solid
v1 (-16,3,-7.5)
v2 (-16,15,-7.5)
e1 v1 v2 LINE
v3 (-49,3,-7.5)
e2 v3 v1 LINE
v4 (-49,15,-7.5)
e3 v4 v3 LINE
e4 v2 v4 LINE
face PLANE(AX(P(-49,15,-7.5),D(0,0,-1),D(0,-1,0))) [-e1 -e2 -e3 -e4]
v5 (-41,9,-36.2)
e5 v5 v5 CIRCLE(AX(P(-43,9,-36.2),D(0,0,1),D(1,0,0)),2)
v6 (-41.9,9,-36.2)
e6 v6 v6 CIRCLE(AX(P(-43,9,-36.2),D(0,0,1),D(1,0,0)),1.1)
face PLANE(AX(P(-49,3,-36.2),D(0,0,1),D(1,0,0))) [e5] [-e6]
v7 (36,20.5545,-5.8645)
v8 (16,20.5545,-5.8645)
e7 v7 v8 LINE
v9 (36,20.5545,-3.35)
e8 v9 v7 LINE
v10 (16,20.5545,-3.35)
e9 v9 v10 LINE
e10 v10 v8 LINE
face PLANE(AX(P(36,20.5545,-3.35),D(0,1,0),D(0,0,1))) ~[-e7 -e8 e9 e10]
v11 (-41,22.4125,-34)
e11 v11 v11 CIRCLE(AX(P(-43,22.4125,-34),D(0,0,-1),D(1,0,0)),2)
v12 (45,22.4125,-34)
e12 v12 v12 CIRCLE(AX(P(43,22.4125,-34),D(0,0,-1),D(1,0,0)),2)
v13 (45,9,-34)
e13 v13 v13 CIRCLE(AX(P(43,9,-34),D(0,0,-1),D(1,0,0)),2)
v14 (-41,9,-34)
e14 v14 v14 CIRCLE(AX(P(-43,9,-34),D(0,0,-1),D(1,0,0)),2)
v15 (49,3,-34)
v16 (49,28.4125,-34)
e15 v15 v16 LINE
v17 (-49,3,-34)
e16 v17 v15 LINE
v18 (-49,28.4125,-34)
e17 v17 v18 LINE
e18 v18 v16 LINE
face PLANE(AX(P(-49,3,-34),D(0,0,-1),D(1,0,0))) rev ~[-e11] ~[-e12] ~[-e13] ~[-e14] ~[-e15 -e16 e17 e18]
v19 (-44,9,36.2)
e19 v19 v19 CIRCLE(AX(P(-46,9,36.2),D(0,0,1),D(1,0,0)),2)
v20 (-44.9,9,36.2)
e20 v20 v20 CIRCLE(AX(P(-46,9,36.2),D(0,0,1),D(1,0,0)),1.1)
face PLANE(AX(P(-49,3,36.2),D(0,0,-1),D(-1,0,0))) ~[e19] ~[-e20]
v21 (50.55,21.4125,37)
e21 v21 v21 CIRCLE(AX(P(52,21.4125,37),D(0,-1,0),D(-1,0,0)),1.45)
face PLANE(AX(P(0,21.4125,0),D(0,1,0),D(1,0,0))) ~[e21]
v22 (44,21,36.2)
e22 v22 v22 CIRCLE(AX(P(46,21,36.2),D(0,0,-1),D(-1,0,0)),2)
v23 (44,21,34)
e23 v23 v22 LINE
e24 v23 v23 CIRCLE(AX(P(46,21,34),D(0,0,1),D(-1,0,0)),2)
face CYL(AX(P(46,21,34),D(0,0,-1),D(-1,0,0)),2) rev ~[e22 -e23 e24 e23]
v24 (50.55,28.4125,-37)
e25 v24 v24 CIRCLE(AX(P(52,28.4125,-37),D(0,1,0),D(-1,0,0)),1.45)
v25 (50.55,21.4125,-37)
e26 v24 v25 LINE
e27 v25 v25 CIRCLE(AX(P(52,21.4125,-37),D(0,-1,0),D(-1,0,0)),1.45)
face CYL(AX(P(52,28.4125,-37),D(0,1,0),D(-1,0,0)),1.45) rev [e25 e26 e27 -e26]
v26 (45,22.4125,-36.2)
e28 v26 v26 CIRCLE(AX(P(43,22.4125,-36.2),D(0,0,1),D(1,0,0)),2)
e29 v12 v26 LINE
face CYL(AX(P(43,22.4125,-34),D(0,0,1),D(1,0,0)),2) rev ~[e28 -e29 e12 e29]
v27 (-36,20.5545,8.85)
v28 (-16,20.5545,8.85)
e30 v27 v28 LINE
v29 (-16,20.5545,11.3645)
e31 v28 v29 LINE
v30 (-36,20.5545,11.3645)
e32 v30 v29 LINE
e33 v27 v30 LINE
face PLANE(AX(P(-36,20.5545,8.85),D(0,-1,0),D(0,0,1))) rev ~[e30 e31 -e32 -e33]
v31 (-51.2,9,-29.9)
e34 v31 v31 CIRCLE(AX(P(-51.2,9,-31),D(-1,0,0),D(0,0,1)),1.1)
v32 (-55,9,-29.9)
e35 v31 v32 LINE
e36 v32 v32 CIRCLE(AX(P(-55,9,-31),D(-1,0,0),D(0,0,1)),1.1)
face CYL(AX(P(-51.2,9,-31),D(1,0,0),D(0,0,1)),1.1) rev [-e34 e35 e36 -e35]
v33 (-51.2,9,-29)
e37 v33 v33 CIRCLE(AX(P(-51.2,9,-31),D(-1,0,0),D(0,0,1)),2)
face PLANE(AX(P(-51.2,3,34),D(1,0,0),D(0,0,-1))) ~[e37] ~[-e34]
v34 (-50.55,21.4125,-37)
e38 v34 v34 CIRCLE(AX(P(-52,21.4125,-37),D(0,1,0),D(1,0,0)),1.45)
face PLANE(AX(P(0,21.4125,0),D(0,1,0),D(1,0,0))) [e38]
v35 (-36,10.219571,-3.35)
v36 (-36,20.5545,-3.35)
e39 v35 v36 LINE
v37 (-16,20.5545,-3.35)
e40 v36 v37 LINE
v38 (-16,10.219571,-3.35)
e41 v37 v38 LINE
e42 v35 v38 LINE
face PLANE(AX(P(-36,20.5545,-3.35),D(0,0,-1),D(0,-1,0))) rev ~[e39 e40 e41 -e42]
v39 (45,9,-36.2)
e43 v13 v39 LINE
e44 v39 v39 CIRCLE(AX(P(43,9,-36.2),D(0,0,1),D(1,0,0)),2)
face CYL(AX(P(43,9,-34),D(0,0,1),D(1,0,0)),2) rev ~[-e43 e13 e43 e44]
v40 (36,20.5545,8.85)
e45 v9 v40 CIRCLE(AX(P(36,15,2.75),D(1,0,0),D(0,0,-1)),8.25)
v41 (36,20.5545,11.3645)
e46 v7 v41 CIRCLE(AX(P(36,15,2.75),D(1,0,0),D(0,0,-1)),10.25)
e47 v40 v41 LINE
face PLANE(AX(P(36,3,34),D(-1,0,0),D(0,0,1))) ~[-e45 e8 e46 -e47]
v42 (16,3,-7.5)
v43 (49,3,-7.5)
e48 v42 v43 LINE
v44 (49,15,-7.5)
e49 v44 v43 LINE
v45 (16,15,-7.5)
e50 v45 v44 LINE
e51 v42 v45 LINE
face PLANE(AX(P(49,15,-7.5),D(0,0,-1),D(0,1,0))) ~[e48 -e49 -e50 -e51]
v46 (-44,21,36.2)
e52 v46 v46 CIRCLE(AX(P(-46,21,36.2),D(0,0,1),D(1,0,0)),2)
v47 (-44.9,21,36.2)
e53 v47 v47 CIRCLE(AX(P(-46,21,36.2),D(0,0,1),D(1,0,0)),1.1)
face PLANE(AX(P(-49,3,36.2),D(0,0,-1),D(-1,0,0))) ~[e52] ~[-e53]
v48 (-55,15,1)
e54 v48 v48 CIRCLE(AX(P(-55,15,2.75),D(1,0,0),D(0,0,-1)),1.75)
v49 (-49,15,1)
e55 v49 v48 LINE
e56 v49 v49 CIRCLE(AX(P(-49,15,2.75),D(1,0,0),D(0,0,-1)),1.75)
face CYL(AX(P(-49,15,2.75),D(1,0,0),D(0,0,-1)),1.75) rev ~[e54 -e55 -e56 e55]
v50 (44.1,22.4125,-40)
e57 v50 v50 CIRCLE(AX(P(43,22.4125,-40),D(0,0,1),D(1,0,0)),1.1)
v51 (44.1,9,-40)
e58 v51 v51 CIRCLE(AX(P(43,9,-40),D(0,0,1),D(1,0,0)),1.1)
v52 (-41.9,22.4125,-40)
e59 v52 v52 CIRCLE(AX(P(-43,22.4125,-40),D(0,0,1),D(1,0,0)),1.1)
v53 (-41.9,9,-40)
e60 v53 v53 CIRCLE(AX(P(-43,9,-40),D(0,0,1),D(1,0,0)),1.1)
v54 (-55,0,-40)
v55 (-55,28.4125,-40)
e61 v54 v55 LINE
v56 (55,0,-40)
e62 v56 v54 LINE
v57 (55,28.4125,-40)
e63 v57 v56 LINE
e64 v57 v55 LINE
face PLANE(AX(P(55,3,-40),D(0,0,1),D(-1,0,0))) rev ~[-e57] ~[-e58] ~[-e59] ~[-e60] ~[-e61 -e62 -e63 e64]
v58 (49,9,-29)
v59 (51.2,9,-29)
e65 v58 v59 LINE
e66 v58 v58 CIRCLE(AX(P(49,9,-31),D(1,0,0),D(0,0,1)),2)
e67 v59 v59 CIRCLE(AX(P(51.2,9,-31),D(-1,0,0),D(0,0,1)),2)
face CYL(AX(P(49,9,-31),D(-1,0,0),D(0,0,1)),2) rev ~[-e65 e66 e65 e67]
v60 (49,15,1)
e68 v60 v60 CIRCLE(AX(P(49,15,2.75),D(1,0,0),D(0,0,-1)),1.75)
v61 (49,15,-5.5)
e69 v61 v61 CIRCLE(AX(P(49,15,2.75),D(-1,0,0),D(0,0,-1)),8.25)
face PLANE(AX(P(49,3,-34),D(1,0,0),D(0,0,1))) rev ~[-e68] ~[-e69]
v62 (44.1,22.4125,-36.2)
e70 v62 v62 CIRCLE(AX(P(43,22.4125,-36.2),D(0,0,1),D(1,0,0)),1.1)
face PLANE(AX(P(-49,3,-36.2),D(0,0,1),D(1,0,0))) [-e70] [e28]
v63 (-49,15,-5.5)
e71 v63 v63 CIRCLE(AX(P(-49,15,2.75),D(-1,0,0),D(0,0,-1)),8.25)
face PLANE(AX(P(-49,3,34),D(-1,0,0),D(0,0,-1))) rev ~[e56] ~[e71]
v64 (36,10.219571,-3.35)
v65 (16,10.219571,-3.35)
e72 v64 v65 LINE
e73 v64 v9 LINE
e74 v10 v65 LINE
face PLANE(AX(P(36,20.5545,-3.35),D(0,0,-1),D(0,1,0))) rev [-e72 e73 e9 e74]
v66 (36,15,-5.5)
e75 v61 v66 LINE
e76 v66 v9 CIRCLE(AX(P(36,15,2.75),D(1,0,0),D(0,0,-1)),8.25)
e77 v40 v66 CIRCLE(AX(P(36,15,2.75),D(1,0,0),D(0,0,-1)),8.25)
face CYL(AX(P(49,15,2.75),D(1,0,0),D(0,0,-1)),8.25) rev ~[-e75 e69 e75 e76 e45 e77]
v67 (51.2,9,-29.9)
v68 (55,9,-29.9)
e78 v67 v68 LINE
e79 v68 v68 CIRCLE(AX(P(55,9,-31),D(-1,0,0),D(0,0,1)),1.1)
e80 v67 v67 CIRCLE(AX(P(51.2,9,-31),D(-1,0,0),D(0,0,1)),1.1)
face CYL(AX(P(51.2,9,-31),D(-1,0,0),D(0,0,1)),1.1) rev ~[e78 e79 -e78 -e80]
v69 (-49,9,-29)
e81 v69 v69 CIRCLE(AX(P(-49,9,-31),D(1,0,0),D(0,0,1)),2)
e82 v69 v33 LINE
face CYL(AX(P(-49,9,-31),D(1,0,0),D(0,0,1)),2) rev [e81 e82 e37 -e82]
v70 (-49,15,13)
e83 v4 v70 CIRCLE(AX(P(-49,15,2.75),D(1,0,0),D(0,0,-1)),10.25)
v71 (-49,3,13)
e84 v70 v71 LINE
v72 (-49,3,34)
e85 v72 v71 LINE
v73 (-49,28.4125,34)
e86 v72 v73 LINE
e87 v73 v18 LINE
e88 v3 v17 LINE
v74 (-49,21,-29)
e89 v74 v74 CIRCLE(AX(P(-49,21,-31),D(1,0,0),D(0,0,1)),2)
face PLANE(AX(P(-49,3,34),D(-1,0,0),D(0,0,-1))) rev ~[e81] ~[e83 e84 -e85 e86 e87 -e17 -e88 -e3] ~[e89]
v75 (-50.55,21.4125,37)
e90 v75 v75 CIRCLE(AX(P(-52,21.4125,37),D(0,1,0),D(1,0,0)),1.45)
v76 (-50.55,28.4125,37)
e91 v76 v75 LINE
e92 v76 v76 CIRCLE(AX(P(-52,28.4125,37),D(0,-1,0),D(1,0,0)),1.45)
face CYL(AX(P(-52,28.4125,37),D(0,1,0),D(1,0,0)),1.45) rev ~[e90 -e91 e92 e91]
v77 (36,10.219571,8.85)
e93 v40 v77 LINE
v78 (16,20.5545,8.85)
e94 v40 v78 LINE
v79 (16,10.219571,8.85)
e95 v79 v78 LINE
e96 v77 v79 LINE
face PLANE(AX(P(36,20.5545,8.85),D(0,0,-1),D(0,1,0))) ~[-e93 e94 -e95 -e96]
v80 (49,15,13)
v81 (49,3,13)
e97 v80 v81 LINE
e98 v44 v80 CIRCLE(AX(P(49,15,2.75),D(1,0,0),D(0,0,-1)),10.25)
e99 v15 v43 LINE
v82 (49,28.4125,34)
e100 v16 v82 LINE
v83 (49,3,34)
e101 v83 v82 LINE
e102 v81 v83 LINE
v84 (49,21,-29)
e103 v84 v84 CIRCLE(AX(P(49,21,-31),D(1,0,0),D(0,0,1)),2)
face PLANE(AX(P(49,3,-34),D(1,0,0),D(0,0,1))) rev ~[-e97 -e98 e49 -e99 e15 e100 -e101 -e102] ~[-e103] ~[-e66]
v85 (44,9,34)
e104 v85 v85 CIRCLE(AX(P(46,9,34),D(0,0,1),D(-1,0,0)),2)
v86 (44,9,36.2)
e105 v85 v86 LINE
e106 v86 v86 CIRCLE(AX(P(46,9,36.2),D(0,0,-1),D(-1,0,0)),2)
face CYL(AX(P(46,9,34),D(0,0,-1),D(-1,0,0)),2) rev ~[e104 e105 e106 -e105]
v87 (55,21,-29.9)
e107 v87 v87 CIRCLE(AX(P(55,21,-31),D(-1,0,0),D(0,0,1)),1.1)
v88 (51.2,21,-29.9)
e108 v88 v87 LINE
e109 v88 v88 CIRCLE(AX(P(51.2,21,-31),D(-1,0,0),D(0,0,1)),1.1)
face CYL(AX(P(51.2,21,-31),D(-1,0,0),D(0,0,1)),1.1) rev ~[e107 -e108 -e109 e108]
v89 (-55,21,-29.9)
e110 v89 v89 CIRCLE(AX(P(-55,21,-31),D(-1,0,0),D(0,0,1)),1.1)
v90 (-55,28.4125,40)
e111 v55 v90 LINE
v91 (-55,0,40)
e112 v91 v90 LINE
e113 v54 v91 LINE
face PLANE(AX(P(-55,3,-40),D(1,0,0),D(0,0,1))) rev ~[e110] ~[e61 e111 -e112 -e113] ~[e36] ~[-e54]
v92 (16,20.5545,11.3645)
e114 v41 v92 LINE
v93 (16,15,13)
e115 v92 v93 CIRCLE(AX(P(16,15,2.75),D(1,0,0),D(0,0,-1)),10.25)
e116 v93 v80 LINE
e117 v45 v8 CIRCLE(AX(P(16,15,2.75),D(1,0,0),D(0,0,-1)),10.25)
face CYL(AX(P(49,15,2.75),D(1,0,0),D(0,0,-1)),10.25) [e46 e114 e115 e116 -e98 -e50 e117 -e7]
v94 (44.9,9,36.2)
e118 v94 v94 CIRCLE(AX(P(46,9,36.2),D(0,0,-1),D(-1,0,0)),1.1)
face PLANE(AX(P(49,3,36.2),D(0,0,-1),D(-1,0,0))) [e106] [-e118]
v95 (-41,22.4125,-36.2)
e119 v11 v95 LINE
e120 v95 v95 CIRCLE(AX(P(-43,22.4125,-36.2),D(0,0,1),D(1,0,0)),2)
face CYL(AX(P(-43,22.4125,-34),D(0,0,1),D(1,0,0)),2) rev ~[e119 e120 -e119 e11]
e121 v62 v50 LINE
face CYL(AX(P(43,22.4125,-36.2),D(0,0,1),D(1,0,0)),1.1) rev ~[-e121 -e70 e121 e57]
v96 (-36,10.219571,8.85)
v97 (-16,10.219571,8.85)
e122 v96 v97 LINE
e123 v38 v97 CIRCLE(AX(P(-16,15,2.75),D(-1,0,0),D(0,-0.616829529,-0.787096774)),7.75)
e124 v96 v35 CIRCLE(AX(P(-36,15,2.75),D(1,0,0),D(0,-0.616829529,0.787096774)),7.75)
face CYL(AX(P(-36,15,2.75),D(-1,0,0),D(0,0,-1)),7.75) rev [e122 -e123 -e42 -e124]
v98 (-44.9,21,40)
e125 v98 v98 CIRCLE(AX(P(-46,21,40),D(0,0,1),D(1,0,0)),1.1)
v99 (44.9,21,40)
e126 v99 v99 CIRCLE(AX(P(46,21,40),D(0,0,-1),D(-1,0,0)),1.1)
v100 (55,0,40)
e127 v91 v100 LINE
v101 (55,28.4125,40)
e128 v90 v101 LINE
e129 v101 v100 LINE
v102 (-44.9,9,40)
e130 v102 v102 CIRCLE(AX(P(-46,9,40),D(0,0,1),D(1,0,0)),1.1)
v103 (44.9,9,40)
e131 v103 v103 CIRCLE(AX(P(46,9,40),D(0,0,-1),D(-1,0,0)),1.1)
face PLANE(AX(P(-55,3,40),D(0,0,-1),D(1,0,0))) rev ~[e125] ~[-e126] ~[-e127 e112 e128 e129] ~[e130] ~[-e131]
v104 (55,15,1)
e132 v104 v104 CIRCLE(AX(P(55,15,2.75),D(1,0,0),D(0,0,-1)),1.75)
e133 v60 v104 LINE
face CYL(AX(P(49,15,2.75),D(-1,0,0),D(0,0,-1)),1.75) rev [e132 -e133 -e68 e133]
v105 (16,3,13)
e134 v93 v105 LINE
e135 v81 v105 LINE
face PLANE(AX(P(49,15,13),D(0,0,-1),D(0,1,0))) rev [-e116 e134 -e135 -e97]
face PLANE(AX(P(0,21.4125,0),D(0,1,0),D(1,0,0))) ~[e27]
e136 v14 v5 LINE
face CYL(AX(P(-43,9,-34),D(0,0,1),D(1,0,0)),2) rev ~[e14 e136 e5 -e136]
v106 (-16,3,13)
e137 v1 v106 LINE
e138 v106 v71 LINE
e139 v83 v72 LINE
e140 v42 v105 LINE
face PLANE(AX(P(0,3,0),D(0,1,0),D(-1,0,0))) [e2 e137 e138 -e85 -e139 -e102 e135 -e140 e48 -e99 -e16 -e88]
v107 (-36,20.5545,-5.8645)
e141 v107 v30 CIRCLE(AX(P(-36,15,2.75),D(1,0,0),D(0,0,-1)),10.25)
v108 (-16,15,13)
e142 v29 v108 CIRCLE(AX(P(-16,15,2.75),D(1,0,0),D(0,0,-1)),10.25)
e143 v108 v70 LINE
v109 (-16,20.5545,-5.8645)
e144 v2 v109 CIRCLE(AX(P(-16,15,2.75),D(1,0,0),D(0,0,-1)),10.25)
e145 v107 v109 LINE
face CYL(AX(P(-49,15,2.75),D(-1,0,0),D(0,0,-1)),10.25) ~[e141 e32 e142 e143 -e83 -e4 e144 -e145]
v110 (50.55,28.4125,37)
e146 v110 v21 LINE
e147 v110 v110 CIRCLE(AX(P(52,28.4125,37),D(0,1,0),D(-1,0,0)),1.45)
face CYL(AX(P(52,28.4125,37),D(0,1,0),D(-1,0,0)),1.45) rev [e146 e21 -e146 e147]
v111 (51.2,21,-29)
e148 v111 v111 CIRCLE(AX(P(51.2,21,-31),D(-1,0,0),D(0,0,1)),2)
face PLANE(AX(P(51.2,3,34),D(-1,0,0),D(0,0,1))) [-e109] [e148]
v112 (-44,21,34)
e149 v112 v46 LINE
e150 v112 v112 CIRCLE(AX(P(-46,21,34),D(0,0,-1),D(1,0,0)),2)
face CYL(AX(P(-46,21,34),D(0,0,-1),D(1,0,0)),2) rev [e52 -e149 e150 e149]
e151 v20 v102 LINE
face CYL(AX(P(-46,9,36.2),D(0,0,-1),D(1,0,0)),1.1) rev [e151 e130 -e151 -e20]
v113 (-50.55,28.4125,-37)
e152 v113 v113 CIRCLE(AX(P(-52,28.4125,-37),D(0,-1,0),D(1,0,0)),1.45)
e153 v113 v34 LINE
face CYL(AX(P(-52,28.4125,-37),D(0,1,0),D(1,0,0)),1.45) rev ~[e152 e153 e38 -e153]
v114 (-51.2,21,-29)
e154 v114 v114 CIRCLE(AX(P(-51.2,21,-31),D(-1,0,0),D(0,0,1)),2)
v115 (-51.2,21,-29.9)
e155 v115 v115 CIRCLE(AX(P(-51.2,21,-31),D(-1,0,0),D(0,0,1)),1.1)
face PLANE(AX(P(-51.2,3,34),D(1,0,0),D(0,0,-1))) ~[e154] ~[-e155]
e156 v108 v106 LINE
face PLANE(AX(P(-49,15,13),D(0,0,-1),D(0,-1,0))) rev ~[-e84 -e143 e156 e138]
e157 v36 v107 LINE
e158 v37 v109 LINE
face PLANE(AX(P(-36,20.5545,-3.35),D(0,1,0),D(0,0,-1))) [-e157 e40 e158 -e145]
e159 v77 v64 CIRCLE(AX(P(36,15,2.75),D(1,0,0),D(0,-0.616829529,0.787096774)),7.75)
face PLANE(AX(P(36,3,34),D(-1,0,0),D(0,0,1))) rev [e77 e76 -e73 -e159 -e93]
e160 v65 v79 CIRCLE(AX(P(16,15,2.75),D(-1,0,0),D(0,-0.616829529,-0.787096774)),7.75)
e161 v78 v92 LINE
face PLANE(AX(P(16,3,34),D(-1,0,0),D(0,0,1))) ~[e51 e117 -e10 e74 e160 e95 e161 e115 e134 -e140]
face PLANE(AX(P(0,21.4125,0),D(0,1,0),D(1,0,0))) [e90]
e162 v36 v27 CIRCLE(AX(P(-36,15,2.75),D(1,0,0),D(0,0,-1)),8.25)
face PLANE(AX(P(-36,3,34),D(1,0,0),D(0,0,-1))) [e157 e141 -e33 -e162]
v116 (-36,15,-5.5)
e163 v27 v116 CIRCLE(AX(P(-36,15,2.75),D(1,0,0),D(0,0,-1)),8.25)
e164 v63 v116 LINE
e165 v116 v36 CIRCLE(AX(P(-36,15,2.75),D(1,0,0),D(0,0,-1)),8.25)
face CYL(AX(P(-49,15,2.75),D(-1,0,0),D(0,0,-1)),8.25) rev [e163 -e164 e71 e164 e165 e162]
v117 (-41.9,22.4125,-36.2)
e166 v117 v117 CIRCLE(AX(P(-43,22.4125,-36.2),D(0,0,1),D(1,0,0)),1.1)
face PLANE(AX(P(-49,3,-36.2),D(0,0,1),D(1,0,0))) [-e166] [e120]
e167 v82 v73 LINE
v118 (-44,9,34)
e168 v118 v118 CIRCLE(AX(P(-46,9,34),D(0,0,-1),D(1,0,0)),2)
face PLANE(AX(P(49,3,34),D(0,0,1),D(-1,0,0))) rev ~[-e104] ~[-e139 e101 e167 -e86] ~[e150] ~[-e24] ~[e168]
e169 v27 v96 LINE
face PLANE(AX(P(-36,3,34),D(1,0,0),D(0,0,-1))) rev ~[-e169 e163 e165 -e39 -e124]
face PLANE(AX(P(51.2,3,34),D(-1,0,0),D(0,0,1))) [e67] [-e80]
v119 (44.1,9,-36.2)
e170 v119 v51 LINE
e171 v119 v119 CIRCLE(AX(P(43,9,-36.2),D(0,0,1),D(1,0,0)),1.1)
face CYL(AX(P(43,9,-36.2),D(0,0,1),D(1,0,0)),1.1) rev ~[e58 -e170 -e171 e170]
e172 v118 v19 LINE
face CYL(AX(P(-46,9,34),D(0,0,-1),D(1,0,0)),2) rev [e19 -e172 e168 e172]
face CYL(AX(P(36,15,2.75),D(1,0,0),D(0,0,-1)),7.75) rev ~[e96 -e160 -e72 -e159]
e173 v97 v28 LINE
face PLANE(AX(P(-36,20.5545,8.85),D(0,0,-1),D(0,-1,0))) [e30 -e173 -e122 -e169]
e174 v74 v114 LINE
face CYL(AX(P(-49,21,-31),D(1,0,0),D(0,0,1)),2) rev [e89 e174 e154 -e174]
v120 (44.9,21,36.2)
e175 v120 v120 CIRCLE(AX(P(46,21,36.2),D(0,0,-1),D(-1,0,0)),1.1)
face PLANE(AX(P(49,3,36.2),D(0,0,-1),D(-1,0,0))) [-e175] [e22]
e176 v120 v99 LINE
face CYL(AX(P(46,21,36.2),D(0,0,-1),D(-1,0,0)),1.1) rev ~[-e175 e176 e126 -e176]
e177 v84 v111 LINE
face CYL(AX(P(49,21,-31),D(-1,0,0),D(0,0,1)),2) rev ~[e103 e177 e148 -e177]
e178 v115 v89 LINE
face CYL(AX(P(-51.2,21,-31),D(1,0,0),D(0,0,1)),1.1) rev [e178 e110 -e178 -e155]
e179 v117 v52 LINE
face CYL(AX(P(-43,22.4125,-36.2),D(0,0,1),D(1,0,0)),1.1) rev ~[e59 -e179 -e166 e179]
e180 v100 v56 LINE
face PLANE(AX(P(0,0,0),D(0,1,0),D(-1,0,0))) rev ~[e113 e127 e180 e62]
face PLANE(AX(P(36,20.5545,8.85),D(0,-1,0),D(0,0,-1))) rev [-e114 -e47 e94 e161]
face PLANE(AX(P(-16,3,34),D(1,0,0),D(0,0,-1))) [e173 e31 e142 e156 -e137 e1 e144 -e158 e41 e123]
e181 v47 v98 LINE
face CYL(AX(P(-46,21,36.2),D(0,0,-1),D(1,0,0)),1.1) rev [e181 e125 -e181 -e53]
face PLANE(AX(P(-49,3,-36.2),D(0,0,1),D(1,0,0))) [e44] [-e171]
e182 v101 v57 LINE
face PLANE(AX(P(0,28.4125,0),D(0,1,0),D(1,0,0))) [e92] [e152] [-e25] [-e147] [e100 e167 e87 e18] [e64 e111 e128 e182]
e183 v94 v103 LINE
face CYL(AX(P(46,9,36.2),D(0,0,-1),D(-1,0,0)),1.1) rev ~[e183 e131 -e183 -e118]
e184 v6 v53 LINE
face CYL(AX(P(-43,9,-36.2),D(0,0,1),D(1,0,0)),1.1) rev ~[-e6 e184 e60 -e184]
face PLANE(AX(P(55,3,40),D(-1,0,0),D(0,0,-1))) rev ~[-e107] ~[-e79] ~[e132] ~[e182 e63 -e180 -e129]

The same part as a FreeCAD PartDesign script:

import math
import FreeCAD as App
import Part
import Sketcher
from FreeCAD import Vector
Q = App.Units.Quantity


def add_polygon(sketch, points):
    """Adds a closed chain of lines whose ends are joined by coincident constraints."""
    first, n = sketch.GeometryCount, len(points)
    for a, b in zip(points, points[1:] + points[:1]):
        sketch.addGeometry(Part.LineSegment(App.Vector(*a, 0), App.Vector(*b, 0)), False)
    for i in range(n):
        sketch.addConstraint(Sketcher.Constraint("Coincident", first + i, 2, first + (i + 1) % n, 1))

doc = App.newDocument("Part")
params = doc.addObject("Spreadsheet::Sheet", "Params")
for row, (alias, value) in enumerate([
    ("sketch1_width", "110 mm"),
    ("sketch1_height", "80 mm"),
    ("pad1_length", "3 mm"),
    ("sketch2_width", "98 mm"),
    ("sketch2_height", "68 mm"),
    ("sketch2_width2", "110 mm"),
    ("sketch2_height2", "80 mm"),
    ("pad2_length", "25.4125 mm"),
    ("sketch3_diameter", "16.5 mm"),
    ("sketch3_width", "12 mm"),
    ("sketch3_radius", "10.25 mm"),
    ("pad3_length", "13 mm"),
    ("sketch4_radius", "7.75 mm"),
    ("sketch4_width", "12 mm"),
    ("sketch4_radius2", "10.25 mm"),
    ("pad4_length", "20 mm"),
    ("sketch5_diameter", "3.5 mm"),
    ("pocket1_length", "6 mm"),
    ("sketch6_diameter", "4 mm"),
    ("pocket2_length", "2.2 mm"),
    ("sketch7_diameter", "2.2 mm"),
    ("pocket3_length", "3.8 mm"),
    ("sketch8_diameter", "2.9 mm"),
    ("pocket4_length", "7 mm"),
    ("sketch9_diameter", "4 mm"),
    ("pocket5_length", "2.2 mm"),
    ("sketch10_diameter", "2.2 mm"),
    ("pocket6_length", "3.8 mm"),
    ("sketch11_diameter", "4 mm"),
    ("pocket7_length", "2.2 mm"),
    ("sketch12_diameter", "2.2 mm"),
    ("pocket8_length", "3.8 mm"),
], start=1):
    params.set(f"A{row}", alias)
    params.set(f"B{row}", "=" + value)
    params.setAlias(f"B{row}", alias)

body = doc.addObject("PartDesign::Body", "Body")

# Sketch on XZ plane
sketch1 = body.newObject("Sketcher::SketchObject", "Sketch")
sketch1.AttachmentSupport = (doc.getObject("XZ_Plane"), [""])
sketch1.MapMode = "FlatFace"
add_polygon(sketch1, [(-55, -40), (-55, 40), (55, 40), (55, -40)])  # lines 0-3
sketch1.addConstraint([
    Sketcher.Constraint("Vertical", 0),
    Sketcher.Constraint("Horizontal", 1),
    Sketcher.Constraint("Vertical", 2),
    Sketcher.Constraint("Horizontal", 3),
    Sketcher.Constraint("Symmetric", 0, 2, 2, 2, -1, 1),
    Sketcher.Constraint("DistanceX", 1, 1, 1, 2, Q("110 mm")),
    Sketcher.Constraint("DistanceY", 0, 1, 0, 2, Q("80 mm")),
])
sketch1.setExpression("Constraints[9]", "Params.sketch1_width")
sketch1.setExpression("Constraints[10]", "Params.sketch1_height")
pad1 = body.newObject("PartDesign::Pad", "Pad")
pad1.Profile = sketch1
pad1.setExpression("Length", "Params.pad1_length")
pad1.Reversed = True

# Sketch on XZ plane
sketch2 = body.newObject("Sketcher::SketchObject", "Sketch001")
sketch2.AttachmentSupport = (doc.getObject("XZ_Plane"), [""])
sketch2.MapMode = "FlatFace"
sketch2.AttachmentOffset = App.Placement(Vector(0, 0, -3), App.Rotation())
add_polygon(sketch2, [(55, -40), (-55, -40), (-55, 40), (55, 40)])  # lines 0-3
add_polygon(sketch2, [(49, -34), (49, 34), (-49, 34), (-49, -34)])  # lines 4-7
sketch2.addConstraint([
    Sketcher.Constraint("Horizontal", 0),
    Sketcher.Constraint("Vertical", 1),
    Sketcher.Constraint("Horizontal", 2),
    Sketcher.Constraint("Vertical", 3),
    Sketcher.Constraint("Vertical", 4),
    Sketcher.Constraint("Horizontal", 5),
    Sketcher.Constraint("Vertical", 6),
    Sketcher.Constraint("Horizontal", 7),
    Sketcher.Constraint("Symmetric", 0, 2, 2, 2, -1, 1),
    Sketcher.Constraint("Symmetric", 4, 2, 6, 2, -1, 1),
    Sketcher.Constraint("DistanceX", 5, 2, 5, 1, Q("98 mm")),
    Sketcher.Constraint("DistanceY", 4, 1, 4, 2, Q("68 mm")),
    Sketcher.Constraint("DistanceX", 0, 2, 0, 1, Q("110 mm")),
    Sketcher.Constraint("DistanceY", 1, 1, 1, 2, Q("80 mm")),
])
sketch2.setExpression("Constraints[18]", "Params.sketch2_width")
sketch2.setExpression("Constraints[19]", "Params.sketch2_height")
sketch2.setExpression("Constraints[20]", "Params.sketch2_width2")
sketch2.setExpression("Constraints[21]", "Params.sketch2_height2")
pad2 = body.newObject("PartDesign::Pad", "Pad001")
pad2.Profile = sketch2
pad2.setExpression("Length", "Params.pad2_length")
pad2.Reversed = True

# Sketch on YZ plane
sketch3 = body.newObject("Sketcher::SketchObject", "Sketch002")
sketch3.AttachmentSupport = (doc.getObject("YZ_Plane"), [""])
sketch3.MapMode = "FlatFace"
sketch3.AttachmentOffset = App.Placement(Vector(0, 0, -49), App.Rotation())
sketch3.addGeometry([
    Part.ArcOfCircle(Part.Circle(Vector(15, 2.75, 0), Vector(0, 0, 1), 10.25), math.radians(-90), math.radians(90)),  # 0
    Part.LineSegment(Vector(15, 13, 0), Vector(3, 13, 0)),  # 1
    Part.LineSegment(Vector(3, 13, 0), Vector(3, -7.5, 0)),  # 2
    Part.LineSegment(Vector(3, -7.5, 0), Vector(15, -7.5, 0)),  # 3
    Part.Circle(Vector(15, 2.75, 0), Vector(0, 0, 1), 8.25),  # 4
], False)
sketch3.addConstraint([
    Sketcher.Constraint("Tangent", 0, 2, 1, 1),
    Sketcher.Constraint("Coincident", 1, 2, 2, 1),
    Sketcher.Constraint("Coincident", 2, 2, 3, 1),
    Sketcher.Constraint("Tangent", 3, 2, 0, 1),
    Sketcher.Constraint("Horizontal", 1),
    Sketcher.Constraint("Vertical", 2),
    Sketcher.Constraint("Horizontal", 3),
    Sketcher.Constraint("Coincident", 4, 3, 0, 3),
    Sketcher.Constraint("Diameter", 4, Q("16.5 mm")),
    Sketcher.Constraint("DistanceX", -1, 1, 0, 3, Q("15 mm")),
    Sketcher.Constraint("DistanceX", 1, 2, 1, 1, Q("12 mm")),
    Sketcher.Constraint("Radius", 0, Q("10.25 mm")),
    Sketcher.Constraint("DistanceY", -1, 1, 0, 2, Q("13 mm")),
])
sketch3.setExpression("Constraints[8]", "Params.sketch3_diameter")
sketch3.setExpression("Constraints[10]", "Params.sketch3_width")
sketch3.setExpression("Constraints[11]", "Params.sketch3_radius")
pad3 = body.newObject("PartDesign::Pad", "Pad002")
pad3.Profile = sketch3
pad3.setExpression("Length", "Params.pad3_length")

# Sketch on YZ plane
sketch4 = body.newObject("Sketcher::SketchObject", "Sketch003")
sketch4.AttachmentSupport = (doc.getObject("YZ_Plane"), [""])
sketch4.MapMode = "FlatFace"
sketch4.AttachmentOffset = App.Placement(Vector(0, 0, -36), App.Rotation())
sketch4.addGeometry([
    Part.LineSegment(Vector(3, -7.5, 0), Vector(15, -7.5, 0)),  # 0
    Part.ArcOfCircle(Part.Circle(Vector(15, 2.75, 0), Vector(0, 0, 1), 10.25), math.radians(-90), math.radians(-57.186686)),  # 1
    Part.LineSegment(Vector(20.5545, -5.8645, 0), Vector(20.5545, -3.35, 0)),  # 2
    Part.LineSegment(Vector(20.5545, -3.35, 0), Vector(10.219571, -3.35, 0)),  # 3
    Part.ArcOfCircle(Part.Circle(Vector(15, 2.75, 0), Vector(0, 0, 1), 7.75), math.radians(128.084978), math.radians(231.915022)),  # 4
    Part.LineSegment(Vector(10.219571, 8.85, 0), Vector(20.5545, 8.85, 0)),  # 5
    Part.LineSegment(Vector(20.5545, 8.85, 0), Vector(20.5545, 11.3645, 0)),  # 6
    Part.ArcOfCircle(Part.Circle(Vector(15, 2.75, 0), Vector(0, 0, 1), 10.25), math.radians(57.186686), math.radians(90)),  # 7
    Part.LineSegment(Vector(15, 13, 0), Vector(3, 13, 0)),  # 8
    Part.LineSegment(Vector(3, 13, 0), Vector(3, -7.5, 0)),  # 9
], False)
sketch4.addConstraint([
    Sketcher.Constraint("Tangent", 0, 2, 1, 1),
    Sketcher.Constraint("Coincident", 1, 2, 2, 1),
    Sketcher.Constraint("Coincident", 2, 2, 3, 1),
    Sketcher.Constraint("Coincident", 3, 2, 4, 2),
    Sketcher.Constraint("Coincident", 4, 1, 5, 1),
    Sketcher.Constraint("Coincident", 5, 2, 6, 1),
    Sketcher.Constraint("Coincident", 6, 2, 7, 1),
    Sketcher.Constraint("Tangent", 7, 2, 8, 1),
    Sketcher.Constraint("Coincident", 8, 2, 9, 1),
    Sketcher.Constraint("Coincident", 9, 2, 0, 1),
    Sketcher.Constraint("Horizontal", 0),
    Sketcher.Constraint("Vertical", 2),
    Sketcher.Constraint("Horizontal", 3),
    Sketcher.Constraint("Horizontal", 5),
    Sketcher.Constraint("Vertical", 6),
    Sketcher.Constraint("Horizontal", 8),
    Sketcher.Constraint("Vertical", 9),
    Sketcher.Constraint("Coincident", 4, 3, 1, 3),
    Sketcher.Constraint("Coincident", 7, 3, 1, 3),
    Sketcher.Constraint("Equal", 1, 7),
    Sketcher.Constraint("Vertical", 3, 2, 4, 1),
    Sketcher.Constraint("Vertical", 2, 2, 5, 2),
    Sketcher.Constraint("Radius", 4, Q("7.75 mm")),
    Sketcher.Constraint("DistanceY", 3, 2, 4, 1, Q("12.2 mm")),
    Sketcher.Constraint("DistanceX", 0, 1, 0, 2, Q("12 mm")),
    Sketcher.Constraint("Radius", 1, Q("10.25 mm")),
    Sketcher.Constraint("DistanceX", -1, 1, 1, 3, Q("15 mm")),
    Sketcher.Constraint("DistanceY", -1, 1, 7, 2, Q("13 mm")),
    Sketcher.Constraint("DistanceX", 3, 2, 3, 1, Q("10.335 mm")),
])
sketch4.setExpression("Constraints[22]", "Params.sketch4_radius")
sketch4.setExpression("Constraints[24]", "Params.sketch4_width")
sketch4.setExpression("Constraints[25]", "Params.sketch4_radius2")
pad4 = body.newObject("PartDesign::Pad", "Pad003")
pad4.Profile = sketch4
pad4.setExpression("Length", "Params.pad4_length")

# Sketch on YZ plane
sketch5 = body.newObject("Sketcher::SketchObject", "Sketch004")
sketch5.AttachmentSupport = (doc.getObject("YZ_Plane"), [""])
sketch5.MapMode = "FlatFace"
sketch5.AttachmentOffset = App.Placement(Vector(0, 0, -49), App.Rotation())
sketch5.addGeometry(Part.Circle(Vector(15, 2.75, 0), Vector(0, 0, 1), 1.75), False)
sketch5.addConstraint([
    Sketcher.Constraint("Diameter", 0, Q("3.5 mm")),
    Sketcher.Constraint("DistanceX", -1, 1, 0, 3, Q("15 mm")),
    Sketcher.Constraint("DistanceY", -1, 1, 0, 3, Q("2.75 mm")),
])
sketch5.setExpression("Constraints[0]", "Params.sketch5_diameter")
pocket1 = body.newObject("PartDesign::Pocket", "Pocket")
pocket1.Profile = sketch5
pocket1.setExpression("Length", "Params.pocket1_length")
doc.recompute()

mirrored = body.newObject("PartDesign::Mirrored", "Mirrored")
mirrored.Originals = [pocket1, pad4, pad3]
mirrored.MirrorPlane = (doc.getObject("YZ_Plane"), [""])
body.Tip = mirrored

# Sketch on XY plane
sketch6 = body.newObject("Sketcher::SketchObject", "Sketch005")
sketch6.AttachmentSupport = (doc.getObject("XY_Plane"), [""])
sketch6.MapMode = "FlatFace"
sketch6.AttachmentOffset = App.Placement(Vector(0, 0, -34), App.Rotation())
sketch6.addGeometry([
    Part.Circle(Vector(43, 22.4125, 0), Vector(0, 0, 1), 2),
    Part.Circle(Vector(43, 9, 0), Vector(0, 0, 1), 2),
    Part.Circle(Vector(-43, 22.4125, 0), Vector(0, 0, 1), 2),
    Part.Circle(Vector(-43, 9, 0), Vector(0, 0, 1), 2),
], False)
sketch6.addConstraint([
    Sketcher.Constraint("Equal", 0, 1),
    Sketcher.Constraint("Equal", 1, 2),
    Sketcher.Constraint("Equal", 2, 3),
    Sketcher.Constraint("Symmetric", 0, 3, 2, 3, -2),
    Sketcher.Constraint("Symmetric", 1, 3, 3, 3, -2),
    Sketcher.Constraint("Vertical", 0, 3, 1, 3),
    Sketcher.Constraint("Diameter", 0, Q("4 mm")),
    Sketcher.Constraint("DistanceX", -1, 1, 0, 3, Q("43 mm")),
    Sketcher.Constraint("DistanceY", -1, 1, 1, 3, Q("9 mm")),
    Sketcher.Constraint("DistanceY", -1, 1, 0, 3, Q("22.4125 mm")),
])
sketch6.setExpression("Constraints[6]", "Params.sketch6_diameter")
pocket2 = body.newObject("PartDesign::Pocket", "Pocket001")
pocket2.Profile = sketch6
pocket2.setExpression("Length", "Params.pocket2_length")

# Sketch on XY plane
sketch7 = body.newObject("Sketcher::SketchObject", "Sketch006")
sketch7.AttachmentSupport = (doc.getObject("XY_Plane"), [""])
sketch7.MapMode = "FlatFace"
sketch7.AttachmentOffset = App.Placement(Vector(0, 0, -36.2), App.Rotation())
sketch7.addGeometry([
    Part.Circle(Vector(-43, 22.4125, 0), Vector(0, 0, 1), 1.1),
    Part.Circle(Vector(-43, 9, 0), Vector(0, 0, 1), 1.1),
    Part.Circle(Vector(43, 22.4125, 0), Vector(0, 0, 1), 1.1),
    Part.Circle(Vector(43, 9, 0), Vector(0, 0, 1), 1.1),
], False)
sketch7.addConstraint([
    Sketcher.Constraint("Equal", 0, 1),
    Sketcher.Constraint("Equal", 1, 2),
    Sketcher.Constraint("Equal", 2, 3),
    Sketcher.Constraint("Symmetric", 0, 3, 2, 3, -2),
    Sketcher.Constraint("Symmetric", 1, 3, 3, 3, -2),
    Sketcher.Constraint("Vertical", 0, 3, 1, 3),
    Sketcher.Constraint("Diameter", 0, Q("2.2 mm")),
    Sketcher.Constraint("DistanceX", 0, 3, -1, 1, Q("43 mm")),
    Sketcher.Constraint("DistanceY", -1, 1, 1, 3, Q("9 mm")),
    Sketcher.Constraint("DistanceY", -1, 1, 0, 3, Q("22.4125 mm")),
])
sketch7.setExpression("Constraints[6]", "Params.sketch7_diameter")
pocket3 = body.newObject("PartDesign::Pocket", "Pocket002")
pocket3.Profile = sketch7
pocket3.setExpression("Length", "Params.pocket3_length")

# Sketch on XZ plane
sketch8 = body.newObject("Sketcher::SketchObject", "Sketch007")
sketch8.AttachmentSupport = (doc.getObject("XZ_Plane"), [""])
sketch8.MapMode = "FlatFace"
sketch8.AttachmentOffset = App.Placement(Vector(0, 0, -28.4125), App.Rotation())
sketch8.addGeometry([
    Part.Circle(Vector(-52, -37, 0), Vector(0, 0, 1), 1.45),
    Part.Circle(Vector(-52, 37, 0), Vector(0, 0, 1), 1.45),
], False)
sketch8.addConstraint([
    Sketcher.Constraint("Equal", 0, 1),
    Sketcher.Constraint("Symmetric", 0, 3, 1, 3, -1),
    Sketcher.Constraint("Diameter", 0, Q("2.9 mm")),
    Sketcher.Constraint("DistanceX", 0, 3, -1, 1, Q("52 mm")),
    Sketcher.Constraint("DistanceY", 0, 3, -1, 1, Q("37 mm")),
])
sketch8.setExpression("Constraints[2]", "Params.sketch8_diameter")
pocket4 = body.newObject("PartDesign::Pocket", "Pocket003")
pocket4.Profile = sketch8
pocket4.setExpression("Length", "Params.pocket4_length")
pocket4.Reversed = True
doc.recompute()

mirrored2 = body.newObject("PartDesign::Mirrored", "Mirrored001")
mirrored2.Originals = [pocket4]
mirrored2.MirrorPlane = (doc.getObject("YZ_Plane"), [""])
body.Tip = mirrored2

# Sketch on YZ plane
sketch9 = body.newObject("Sketcher::SketchObject", "Sketch008")
sketch9.AttachmentSupport = (doc.getObject("YZ_Plane"), [""])
sketch9.MapMode = "FlatFace"
sketch9.AttachmentOffset = App.Placement(Vector(0, 0, 49), App.Rotation())
sketch9.addGeometry([
    Part.Circle(Vector(9, -31, 0), Vector(0, 0, 1), 2),
    Part.Circle(Vector(21, -31, 0), Vector(0, 0, 1), 2),
], False)
sketch9.addConstraint([
    Sketcher.Constraint("Equal", 0, 1),
    Sketcher.Constraint("Horizontal", 0, 3, 1, 3),
    Sketcher.Constraint("Diameter", 0, Q("4 mm")),
    Sketcher.Constraint("DistanceX", -1, 1, 0, 3, Q("9 mm")),
    Sketcher.Constraint("DistanceY", 0, 3, -1, 1, Q("31 mm")),
    Sketcher.Constraint("DistanceX", -1, 1, 1, 3, Q("21 mm")),
])
sketch9.setExpression("Constraints[2]", "Params.sketch9_diameter")
pocket5 = body.newObject("PartDesign::Pocket", "Pocket004")
pocket5.Profile = sketch9
pocket5.setExpression("Length", "Params.pocket5_length")
pocket5.Reversed = True

# Sketch on YZ plane
sketch10 = body.newObject("Sketcher::SketchObject", "Sketch009")
sketch10.AttachmentSupport = (doc.getObject("YZ_Plane"), [""])
sketch10.MapMode = "FlatFace"
sketch10.AttachmentOffset = App.Placement(Vector(0, 0, 51.2), App.Rotation())
sketch10.addGeometry([
    Part.Circle(Vector(21, -31, 0), Vector(0, 0, 1), 1.1),
    Part.Circle(Vector(9, -31, 0), Vector(0, 0, 1), 1.1),
], False)
sketch10.addConstraint([
    Sketcher.Constraint("Equal", 0, 1),
    Sketcher.Constraint("Horizontal", 0, 3, 1, 3),
    Sketcher.Constraint("Diameter", 0, Q("2.2 mm")),
    Sketcher.Constraint("DistanceX", -1, 1, 0, 3, Q("21 mm")),
    Sketcher.Constraint("DistanceY", 0, 3, -1, 1, Q("31 mm")),
    Sketcher.Constraint("DistanceX", -1, 1, 1, 3, Q("9 mm")),
])
sketch10.setExpression("Constraints[2]", "Params.sketch10_diameter")
pocket6 = body.newObject("PartDesign::Pocket", "Pocket005")
pocket6.Profile = sketch10
pocket6.setExpression("Length", "Params.pocket6_length")
pocket6.Reversed = True

# Sketch on XY plane
sketch11 = body.newObject("Sketcher::SketchObject", "Sketch010")
sketch11.AttachmentSupport = (doc.getObject("XY_Plane"), [""])
sketch11.MapMode = "FlatFace"
sketch11.AttachmentOffset = App.Placement(Vector(0, 0, 34), App.Rotation())
sketch11.addGeometry([
    Part.Circle(Vector(46, 9, 0), Vector(0, 0, 1), 2),
    Part.Circle(Vector(46, 21, 0), Vector(0, 0, 1), 2),
], False)
sketch11.addConstraint([
    Sketcher.Constraint("Equal", 0, 1),
    Sketcher.Constraint("Vertical", 0, 3, 1, 3),
    Sketcher.Constraint("Diameter", 0, Q("4 mm")),
    Sketcher.Constraint("DistanceX", -1, 1, 0, 3, Q("46 mm")),
    Sketcher.Constraint("DistanceY", -1, 1, 0, 3, Q("9 mm")),
    Sketcher.Constraint("DistanceY", -1, 1, 1, 3, Q("21 mm")),
])
sketch11.setExpression("Constraints[2]", "Params.sketch11_diameter")
pocket7 = body.newObject("PartDesign::Pocket", "Pocket006")
pocket7.Profile = sketch11
pocket7.setExpression("Length", "Params.pocket7_length")
pocket7.Reversed = True

# Sketch on XY plane
sketch12 = body.newObject("Sketcher::SketchObject", "Sketch011")
sketch12.AttachmentSupport = (doc.getObject("XY_Plane"), [""])
sketch12.MapMode = "FlatFace"
sketch12.AttachmentOffset = App.Placement(Vector(0, 0, 36.2), App.Rotation())
sketch12.addGeometry([
    Part.Circle(Vector(46, 21, 0), Vector(0, 0, 1), 1.1),
    Part.Circle(Vector(46, 9, 0), Vector(0, 0, 1), 1.1),
], False)
sketch12.addConstraint([
    Sketcher.Constraint("Equal", 0, 1),
    Sketcher.Constraint("Vertical", 0, 3, 1, 3),
    Sketcher.Constraint("Diameter", 0, Q("2.2 mm")),
    Sketcher.Constraint("DistanceX", -1, 1, 0, 3, Q("46 mm")),
    Sketcher.Constraint("DistanceY", -1, 1, 0, 3, Q("21 mm")),
    Sketcher.Constraint("DistanceY", -1, 1, 1, 3, Q("9 mm")),
])
sketch12.setExpression("Constraints[2]", "Params.sketch12_diameter")
pocket8 = body.newObject("PartDesign::Pocket", "Pocket007")
pocket8.Profile = sketch12
pocket8.setExpression("Length", "Params.pocket8_length")
pocket8.Reversed = True
doc.recompute()

mirrored3 = body.newObject("PartDesign::Mirrored", "Mirrored002")
mirrored3.Originals = [pocket5, pocket6, pocket7, pocket8]
mirrored3.MirrorPlane = (doc.getObject("YZ_Plane"), [""])
body.Tip = mirrored3

doc.recompute()
